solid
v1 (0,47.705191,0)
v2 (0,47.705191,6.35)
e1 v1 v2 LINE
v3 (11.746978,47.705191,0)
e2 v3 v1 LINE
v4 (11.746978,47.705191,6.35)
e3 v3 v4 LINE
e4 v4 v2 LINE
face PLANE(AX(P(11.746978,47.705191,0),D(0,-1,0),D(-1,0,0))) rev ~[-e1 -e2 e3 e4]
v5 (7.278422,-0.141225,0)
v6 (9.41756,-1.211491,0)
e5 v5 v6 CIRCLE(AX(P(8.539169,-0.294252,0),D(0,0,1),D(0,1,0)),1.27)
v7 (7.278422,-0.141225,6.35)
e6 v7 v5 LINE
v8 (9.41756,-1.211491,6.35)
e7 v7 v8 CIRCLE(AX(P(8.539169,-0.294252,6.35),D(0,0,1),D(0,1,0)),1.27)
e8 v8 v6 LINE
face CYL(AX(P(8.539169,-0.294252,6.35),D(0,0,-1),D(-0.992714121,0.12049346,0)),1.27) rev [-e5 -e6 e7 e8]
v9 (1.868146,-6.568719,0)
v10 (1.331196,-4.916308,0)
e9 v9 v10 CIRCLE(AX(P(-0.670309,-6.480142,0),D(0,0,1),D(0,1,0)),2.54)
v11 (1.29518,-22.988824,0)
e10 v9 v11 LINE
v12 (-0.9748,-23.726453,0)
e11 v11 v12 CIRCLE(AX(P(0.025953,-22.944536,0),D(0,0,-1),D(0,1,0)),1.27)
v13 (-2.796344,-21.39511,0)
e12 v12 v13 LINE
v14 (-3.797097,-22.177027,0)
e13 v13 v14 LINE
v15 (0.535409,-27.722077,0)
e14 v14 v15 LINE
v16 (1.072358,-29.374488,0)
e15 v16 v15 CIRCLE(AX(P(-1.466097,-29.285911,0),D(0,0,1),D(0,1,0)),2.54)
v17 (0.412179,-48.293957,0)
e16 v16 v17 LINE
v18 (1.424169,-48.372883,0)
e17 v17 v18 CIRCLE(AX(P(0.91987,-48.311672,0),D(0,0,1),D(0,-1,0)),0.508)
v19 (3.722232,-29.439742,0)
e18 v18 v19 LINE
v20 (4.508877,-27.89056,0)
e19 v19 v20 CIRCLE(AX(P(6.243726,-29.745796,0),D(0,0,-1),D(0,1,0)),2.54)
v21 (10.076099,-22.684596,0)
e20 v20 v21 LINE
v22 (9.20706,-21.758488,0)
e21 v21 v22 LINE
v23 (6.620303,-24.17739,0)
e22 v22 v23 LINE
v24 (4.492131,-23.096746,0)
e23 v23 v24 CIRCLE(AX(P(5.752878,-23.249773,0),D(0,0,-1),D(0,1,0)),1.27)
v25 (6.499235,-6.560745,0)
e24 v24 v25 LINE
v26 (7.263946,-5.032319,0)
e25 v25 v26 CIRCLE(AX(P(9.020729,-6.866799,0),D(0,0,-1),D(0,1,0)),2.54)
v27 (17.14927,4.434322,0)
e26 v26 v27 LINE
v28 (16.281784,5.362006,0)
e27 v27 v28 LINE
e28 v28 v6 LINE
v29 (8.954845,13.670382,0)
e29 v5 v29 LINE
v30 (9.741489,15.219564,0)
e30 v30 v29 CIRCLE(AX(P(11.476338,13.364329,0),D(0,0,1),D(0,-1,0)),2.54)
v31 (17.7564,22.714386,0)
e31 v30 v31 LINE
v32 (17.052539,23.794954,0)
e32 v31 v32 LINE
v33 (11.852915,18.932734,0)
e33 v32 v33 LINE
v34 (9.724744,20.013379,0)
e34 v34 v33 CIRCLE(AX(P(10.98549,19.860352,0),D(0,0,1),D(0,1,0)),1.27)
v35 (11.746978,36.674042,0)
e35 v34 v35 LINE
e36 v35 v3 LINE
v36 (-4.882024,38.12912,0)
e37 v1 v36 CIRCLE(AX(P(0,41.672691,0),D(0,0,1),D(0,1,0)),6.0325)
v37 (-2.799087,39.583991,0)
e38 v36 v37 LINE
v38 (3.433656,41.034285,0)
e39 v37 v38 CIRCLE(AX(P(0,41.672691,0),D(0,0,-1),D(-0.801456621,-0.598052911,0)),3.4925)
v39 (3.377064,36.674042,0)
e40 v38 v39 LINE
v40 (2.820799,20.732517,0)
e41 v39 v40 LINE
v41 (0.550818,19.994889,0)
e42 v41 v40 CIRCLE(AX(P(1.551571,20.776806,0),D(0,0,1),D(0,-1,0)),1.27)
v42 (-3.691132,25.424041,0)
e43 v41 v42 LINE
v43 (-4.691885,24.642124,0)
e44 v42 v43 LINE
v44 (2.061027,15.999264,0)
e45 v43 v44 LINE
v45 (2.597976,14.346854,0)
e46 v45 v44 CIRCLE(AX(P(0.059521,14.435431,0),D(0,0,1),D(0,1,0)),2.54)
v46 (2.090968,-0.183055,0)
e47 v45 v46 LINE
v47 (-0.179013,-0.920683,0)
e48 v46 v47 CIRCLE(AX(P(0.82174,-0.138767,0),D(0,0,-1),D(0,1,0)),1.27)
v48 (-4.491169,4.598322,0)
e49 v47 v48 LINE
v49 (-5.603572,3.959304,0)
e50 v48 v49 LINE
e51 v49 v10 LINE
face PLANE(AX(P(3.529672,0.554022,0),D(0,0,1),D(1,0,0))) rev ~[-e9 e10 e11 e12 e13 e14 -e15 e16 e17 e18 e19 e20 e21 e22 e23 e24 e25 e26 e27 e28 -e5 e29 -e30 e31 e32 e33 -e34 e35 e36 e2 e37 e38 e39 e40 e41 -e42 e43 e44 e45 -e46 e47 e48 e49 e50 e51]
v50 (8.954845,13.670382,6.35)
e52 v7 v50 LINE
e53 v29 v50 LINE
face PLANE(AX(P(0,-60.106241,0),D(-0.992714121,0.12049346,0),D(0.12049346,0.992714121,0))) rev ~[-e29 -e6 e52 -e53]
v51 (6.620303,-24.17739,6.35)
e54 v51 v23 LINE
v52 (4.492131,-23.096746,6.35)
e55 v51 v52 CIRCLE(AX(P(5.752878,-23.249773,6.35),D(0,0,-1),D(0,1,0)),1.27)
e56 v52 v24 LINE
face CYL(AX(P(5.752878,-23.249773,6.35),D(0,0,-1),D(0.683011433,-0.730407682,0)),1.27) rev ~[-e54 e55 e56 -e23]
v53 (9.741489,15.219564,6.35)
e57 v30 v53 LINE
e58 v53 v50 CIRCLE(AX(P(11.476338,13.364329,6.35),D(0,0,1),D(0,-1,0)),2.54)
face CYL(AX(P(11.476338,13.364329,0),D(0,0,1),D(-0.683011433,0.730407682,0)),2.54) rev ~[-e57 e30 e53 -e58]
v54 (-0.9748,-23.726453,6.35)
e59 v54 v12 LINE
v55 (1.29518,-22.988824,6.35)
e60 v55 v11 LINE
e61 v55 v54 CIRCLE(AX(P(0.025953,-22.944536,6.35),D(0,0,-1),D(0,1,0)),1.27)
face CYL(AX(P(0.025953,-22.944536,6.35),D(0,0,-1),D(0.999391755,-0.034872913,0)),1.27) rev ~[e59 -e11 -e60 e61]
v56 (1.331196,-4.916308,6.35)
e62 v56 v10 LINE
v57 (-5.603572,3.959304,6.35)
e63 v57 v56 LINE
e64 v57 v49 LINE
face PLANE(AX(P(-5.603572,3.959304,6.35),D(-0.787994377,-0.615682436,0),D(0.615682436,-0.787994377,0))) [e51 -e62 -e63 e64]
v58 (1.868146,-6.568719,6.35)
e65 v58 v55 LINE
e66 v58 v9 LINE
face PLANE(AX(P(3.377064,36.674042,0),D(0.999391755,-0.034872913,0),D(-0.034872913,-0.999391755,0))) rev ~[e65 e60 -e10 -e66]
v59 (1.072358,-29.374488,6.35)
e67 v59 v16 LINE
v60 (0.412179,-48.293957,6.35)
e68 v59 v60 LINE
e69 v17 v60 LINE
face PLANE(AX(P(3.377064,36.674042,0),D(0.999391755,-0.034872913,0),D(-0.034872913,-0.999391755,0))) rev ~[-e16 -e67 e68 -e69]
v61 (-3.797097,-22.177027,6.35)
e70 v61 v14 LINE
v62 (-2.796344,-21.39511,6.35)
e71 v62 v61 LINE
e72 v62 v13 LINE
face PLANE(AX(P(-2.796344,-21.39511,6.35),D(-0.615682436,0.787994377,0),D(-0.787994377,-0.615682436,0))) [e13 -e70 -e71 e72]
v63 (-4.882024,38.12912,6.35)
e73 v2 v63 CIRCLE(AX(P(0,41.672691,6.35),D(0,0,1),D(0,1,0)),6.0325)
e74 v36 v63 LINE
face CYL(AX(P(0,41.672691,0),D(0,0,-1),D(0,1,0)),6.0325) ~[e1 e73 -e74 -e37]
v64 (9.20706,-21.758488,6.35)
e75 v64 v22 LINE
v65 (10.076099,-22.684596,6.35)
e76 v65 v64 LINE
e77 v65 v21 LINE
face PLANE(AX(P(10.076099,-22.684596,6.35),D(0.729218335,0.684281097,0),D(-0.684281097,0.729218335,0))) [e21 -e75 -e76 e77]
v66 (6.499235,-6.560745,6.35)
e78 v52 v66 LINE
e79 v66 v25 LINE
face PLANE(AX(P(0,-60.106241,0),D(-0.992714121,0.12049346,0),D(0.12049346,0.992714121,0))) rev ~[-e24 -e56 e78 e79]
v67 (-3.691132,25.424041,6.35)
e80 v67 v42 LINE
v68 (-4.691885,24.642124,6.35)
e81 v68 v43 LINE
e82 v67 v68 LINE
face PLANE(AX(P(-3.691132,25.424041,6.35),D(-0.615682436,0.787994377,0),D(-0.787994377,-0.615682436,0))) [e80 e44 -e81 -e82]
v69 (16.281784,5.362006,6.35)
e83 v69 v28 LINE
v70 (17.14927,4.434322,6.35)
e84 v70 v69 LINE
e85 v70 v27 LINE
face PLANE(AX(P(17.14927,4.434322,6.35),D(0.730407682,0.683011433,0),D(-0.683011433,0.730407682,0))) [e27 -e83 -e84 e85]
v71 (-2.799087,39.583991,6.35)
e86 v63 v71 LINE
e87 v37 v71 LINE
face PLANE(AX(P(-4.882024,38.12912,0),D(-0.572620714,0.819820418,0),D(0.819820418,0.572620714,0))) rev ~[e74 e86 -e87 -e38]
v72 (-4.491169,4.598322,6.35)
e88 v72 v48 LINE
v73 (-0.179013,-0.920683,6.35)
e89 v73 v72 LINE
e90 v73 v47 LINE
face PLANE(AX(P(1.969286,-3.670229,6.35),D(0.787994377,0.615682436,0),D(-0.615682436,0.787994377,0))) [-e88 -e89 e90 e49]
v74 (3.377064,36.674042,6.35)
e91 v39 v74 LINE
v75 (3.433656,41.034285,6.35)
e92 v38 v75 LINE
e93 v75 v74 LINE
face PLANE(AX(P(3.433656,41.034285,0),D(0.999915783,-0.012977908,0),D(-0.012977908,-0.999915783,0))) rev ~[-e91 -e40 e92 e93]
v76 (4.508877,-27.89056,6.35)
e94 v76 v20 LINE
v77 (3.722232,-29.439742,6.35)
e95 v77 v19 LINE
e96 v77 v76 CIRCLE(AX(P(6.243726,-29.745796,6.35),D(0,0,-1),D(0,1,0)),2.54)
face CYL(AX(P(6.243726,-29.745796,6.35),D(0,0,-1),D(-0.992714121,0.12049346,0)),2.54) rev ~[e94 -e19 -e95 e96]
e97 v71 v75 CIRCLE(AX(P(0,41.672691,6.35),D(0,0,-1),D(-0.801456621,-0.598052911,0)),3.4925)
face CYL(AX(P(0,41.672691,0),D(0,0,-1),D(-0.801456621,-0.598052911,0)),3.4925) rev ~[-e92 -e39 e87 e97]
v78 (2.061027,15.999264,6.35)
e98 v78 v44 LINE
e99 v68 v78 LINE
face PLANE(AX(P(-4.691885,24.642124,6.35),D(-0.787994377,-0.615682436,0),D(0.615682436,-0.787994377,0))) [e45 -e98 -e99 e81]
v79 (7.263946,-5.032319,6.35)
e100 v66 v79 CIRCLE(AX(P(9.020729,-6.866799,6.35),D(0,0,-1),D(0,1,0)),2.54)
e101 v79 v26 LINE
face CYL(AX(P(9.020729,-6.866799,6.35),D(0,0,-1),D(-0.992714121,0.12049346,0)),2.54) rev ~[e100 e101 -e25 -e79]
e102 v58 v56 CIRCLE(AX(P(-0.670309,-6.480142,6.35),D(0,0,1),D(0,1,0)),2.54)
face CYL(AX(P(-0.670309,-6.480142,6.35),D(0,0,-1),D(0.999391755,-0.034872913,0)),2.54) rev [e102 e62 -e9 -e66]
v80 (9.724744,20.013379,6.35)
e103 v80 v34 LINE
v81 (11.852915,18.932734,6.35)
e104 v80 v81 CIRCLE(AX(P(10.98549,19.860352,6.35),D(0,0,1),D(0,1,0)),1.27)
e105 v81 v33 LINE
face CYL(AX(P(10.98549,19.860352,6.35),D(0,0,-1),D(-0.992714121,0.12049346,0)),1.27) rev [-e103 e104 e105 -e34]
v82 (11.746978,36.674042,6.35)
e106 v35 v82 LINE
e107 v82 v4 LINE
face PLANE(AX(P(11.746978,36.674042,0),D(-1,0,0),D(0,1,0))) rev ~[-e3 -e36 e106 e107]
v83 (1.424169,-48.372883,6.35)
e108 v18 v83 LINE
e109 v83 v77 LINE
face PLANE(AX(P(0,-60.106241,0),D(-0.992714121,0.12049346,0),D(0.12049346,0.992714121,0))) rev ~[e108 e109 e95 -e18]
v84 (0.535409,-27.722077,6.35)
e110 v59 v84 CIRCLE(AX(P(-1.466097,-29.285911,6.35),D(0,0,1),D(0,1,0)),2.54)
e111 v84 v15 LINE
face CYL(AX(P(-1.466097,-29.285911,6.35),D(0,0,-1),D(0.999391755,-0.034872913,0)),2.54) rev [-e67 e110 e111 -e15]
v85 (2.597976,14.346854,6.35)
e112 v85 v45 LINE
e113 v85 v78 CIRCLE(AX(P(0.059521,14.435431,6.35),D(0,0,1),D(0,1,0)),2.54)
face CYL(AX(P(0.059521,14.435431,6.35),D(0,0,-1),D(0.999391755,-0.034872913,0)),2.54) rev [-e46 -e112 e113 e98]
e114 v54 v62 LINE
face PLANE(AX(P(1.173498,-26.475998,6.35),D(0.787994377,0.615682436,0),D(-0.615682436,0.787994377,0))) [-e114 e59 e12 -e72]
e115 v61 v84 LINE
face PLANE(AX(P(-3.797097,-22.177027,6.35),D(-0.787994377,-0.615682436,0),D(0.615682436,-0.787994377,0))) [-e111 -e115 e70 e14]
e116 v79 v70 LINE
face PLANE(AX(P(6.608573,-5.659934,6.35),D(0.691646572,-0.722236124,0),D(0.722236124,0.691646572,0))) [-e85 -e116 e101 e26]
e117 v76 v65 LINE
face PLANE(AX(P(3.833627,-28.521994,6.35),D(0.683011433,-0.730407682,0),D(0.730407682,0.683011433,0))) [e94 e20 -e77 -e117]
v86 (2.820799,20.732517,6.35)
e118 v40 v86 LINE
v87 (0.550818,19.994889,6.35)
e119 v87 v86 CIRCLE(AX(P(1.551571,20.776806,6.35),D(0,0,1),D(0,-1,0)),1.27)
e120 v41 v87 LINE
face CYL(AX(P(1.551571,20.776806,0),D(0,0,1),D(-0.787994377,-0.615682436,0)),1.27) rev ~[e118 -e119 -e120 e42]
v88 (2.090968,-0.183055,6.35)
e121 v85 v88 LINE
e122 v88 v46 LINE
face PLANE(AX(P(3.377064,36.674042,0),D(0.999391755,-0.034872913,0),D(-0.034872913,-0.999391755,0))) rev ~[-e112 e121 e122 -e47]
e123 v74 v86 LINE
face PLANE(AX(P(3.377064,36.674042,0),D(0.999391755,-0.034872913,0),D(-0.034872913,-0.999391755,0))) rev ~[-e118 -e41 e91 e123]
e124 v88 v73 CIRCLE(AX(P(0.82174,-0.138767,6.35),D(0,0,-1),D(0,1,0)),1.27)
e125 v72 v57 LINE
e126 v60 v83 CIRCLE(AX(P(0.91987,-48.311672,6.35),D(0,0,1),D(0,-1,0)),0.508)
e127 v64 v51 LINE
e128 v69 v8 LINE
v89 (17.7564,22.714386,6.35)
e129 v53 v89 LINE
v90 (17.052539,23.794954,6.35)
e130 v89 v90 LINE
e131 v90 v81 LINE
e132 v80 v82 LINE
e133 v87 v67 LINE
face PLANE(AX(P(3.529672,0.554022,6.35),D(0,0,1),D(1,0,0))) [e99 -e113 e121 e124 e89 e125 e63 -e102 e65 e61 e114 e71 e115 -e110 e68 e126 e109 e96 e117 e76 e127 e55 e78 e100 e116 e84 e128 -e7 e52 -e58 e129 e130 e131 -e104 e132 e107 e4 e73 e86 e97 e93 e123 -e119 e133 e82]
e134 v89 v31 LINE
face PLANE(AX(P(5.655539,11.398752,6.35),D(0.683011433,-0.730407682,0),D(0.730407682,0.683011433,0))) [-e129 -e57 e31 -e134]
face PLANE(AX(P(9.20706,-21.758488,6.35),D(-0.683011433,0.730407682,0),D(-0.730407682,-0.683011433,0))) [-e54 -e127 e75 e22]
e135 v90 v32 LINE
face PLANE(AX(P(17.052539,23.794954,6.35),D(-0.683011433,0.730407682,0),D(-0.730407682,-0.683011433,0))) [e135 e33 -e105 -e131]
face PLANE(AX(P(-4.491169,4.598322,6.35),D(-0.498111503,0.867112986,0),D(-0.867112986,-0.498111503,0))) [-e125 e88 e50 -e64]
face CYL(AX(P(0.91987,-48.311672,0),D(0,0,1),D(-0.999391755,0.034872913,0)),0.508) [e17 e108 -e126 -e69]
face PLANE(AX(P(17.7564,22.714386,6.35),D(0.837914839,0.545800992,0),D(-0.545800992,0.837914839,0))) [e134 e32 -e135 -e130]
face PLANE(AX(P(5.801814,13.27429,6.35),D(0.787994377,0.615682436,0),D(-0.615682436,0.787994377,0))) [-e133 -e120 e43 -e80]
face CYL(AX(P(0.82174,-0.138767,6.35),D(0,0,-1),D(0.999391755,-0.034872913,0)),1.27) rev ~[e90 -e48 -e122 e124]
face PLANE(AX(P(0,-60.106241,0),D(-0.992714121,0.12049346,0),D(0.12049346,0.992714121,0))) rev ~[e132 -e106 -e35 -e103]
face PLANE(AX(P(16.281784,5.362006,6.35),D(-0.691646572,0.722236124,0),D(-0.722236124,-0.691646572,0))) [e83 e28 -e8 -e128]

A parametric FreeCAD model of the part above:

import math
import FreeCAD as App
import Part
import Sketcher
from FreeCAD import Vector
Q = App.Units.Quantity


def edges_at(feature, points):
    """Names of the edges that pass closest to the given points."""
    edges = feature.Shape.Edges
    near = lambda p: min(range(len(edges)), key=lambda i: edges[i].distToShape(Part.Vertex(*p))[0])
    return sorted({f"Edge{near(p) + 1}" for p in points})


def add_polygon(sketch, points):
    """Adds a closed chain of lines whose ends are joined by coincident constraints."""
    first, n = sketch.GeometryCount, len(points)
    for a, b in zip(points, points[1:] + points[:1]):
        sketch.addGeometry(Part.LineSegment(App.Vector(*a, 0), App.Vector(*b, 0)), False)
    for i in range(n):
        sketch.addConstraint(Sketcher.Constraint("Coincident", first + i, 2, first + (i + 1) % n, 1))

doc = App.newDocument("Part")
body = doc.addObject("PartDesign::Body", "Body")

sketch1 = body.newObject("Sketcher::SketchObject", "Sketch")
sketch1.AttachmentSupport = (doc.getObject("XY_Plane"), [""])
sketch1.MapMode = "FlatFace"
sketch1.addGeometry([
    Part.ArcOfCircle(Part.Circle(Vector(0, 41.7, 0), Vector(0, 0, 1), 3.5), math.radians(-11), math.radians(217)),
    Part.LineSegment(Vector(3.4, 41, 0), Vector(3.4, 36.7, 0)),
    Part.LineSegment(Vector(3.4, 36.7, 0), Vector(0, -60.1, 0)),
    Part.LineSegment(Vector(0, -60.1, 0), Vector(11.7, 36.7, 0)),
    Part.LineSegment(Vector(11.7, 36.7, 0), Vector(11.7, 47.7, 0)),
    Part.LineSegment(Vector(11.7, 47.7, 0), Vector(0, 47.7, 0)),
    Part.ArcOfCircle(Part.Circle(Vector(0, 41.7, 0), Vector(0, 0, 1), 6), math.radians(90), math.radians(216)),
    Part.LineSegment(Vector(-4.9, 38.1, 0), Vector(-2.8, 39.6, 0)),
], False)
sketch1.addConstraint([
    Sketcher.Constraint("Coincident", 0, 1, 1, 1),
    Sketcher.Constraint("Coincident", 1, 2, 2, 1),
    Sketcher.Constraint("Coincident", 2, 2, 3, 1),
    Sketcher.Constraint("Coincident", 3, 2, 4, 1),
    Sketcher.Constraint("Coincident", 4, 2, 5, 1),
    Sketcher.Constraint("Tangent", 5, 2, 6, 1),
    Sketcher.Constraint("Coincident", 6, 2, 7, 1),
    Sketcher.Constraint("Coincident", 7, 2, 0, 2),
    Sketcher.Constraint("Vertical", 4),
    Sketcher.Constraint("Horizontal", 5),
    Sketcher.Constraint("Coincident", 6, 3, 0, 3),
    Sketcher.Constraint("PointOnObject", 0, 3, -2),
    Sketcher.Constraint("PointOnObject", 2, 2, -2),
    Sketcher.Constraint("Horizontal", 1, 2, 3, 2),
    Sketcher.Constraint("Radius", 0, Q("0.1375 in")),
    Sketcher.Constraint("Radius", 6, Q("0.2375 in")),
    Sketcher.Constraint("DistanceX", 5, 2, 5, 1, Q("11.746978 mm")),
    Sketcher.Constraint("DistanceY", 4, 1, 4, 2, Q("11.031149 mm")),
    Sketcher.Constraint("DistanceY", 7, 2, 0, 3, Q("2.0887 mm")),
    Sketcher.Constraint("Distance", 1, Q("4.36061 mm")),
    Sketcher.Constraint("DistanceY", -1, 1, 0, 3, Q("41.672691 mm")),
    Sketcher.Constraint("DistanceY", 2, 2, -1, 1, Q("60.106241 mm")),
    Sketcher.Constraint("DistanceY", -1, 1, 6, 2, Q("38.12912 mm")),
    Sketcher.Constraint("DistanceX", 1, 2, 0, 1, Q("0.056592 mm")),
])
pad1 = body.newObject("PartDesign::Pad", "Pad")
pad1.Profile = sketch1
pad1.Length = Q("0.25 in")

sketch2 = body.newObject("Sketcher::SketchObject", "Sketch001")
sketch2.AttachmentSupport = (doc.getObject("XY_Plane"), [""])
sketch2.MapMode = "FlatFace"
sketch2.AttachmentOffset = App.Placement(Vector(0, 0, 0.25 * 25.4), App.Rotation())
add_polygon(sketch2, [(5.8, 13.3), (-3.7, 25.4), (-4.7, 24.6), (5.7, 11.4), (17.8, 22.7), (17.1, 23.8)])
add_polygon(sketch2, [(2, -3.7), (-4.5, 4.6), (-5.6, 4), (1.9, -5.6)])
add_polygon(sketch2, [(16.3, 5.4), (6.9, -3.7), (6.6, -5.7), (17.1, 4.4)])
add_polygon(sketch2, [(1.1, -28.5), (1.2, -26.5), (-2.8, -21.4), (-3.8, -22.2)])
add_polygon(sketch2, [(9.2, -21.8), (4.1, -26.6), (3.8, -28.5), (10.1, -22.7)])
sketch2.addConstraint([
    Sketcher.Constraint("Perpendicular", 0, 1),
    Sketcher.Constraint("Perpendicular", 1, 2),
    Sketcher.Constraint("Parallel", 3, 5),
    Sketcher.Constraint("Parallel", 2, 6),
    Sketcher.Constraint("Parallel", 6, 8),
    Sketcher.Constraint("Parallel", 10, 12),
    Sketcher.Constraint("Perpendicular", 5, 13),
    Sketcher.Constraint("Parallel", 9, 14),
    Sketcher.Constraint("Parallel", 8, 15),
    Sketcher.Constraint("Perpendicular", 15, 16),
    Sketcher.Constraint("Perpendicular", 16, 17),
    Sketcher.Constraint("Perpendicular", 13, 18),
    Sketcher.Constraint("Parallel", 11, 19),
    Sketcher.Constraint("Parallel", 18, 20),
    Sketcher.Constraint("Horizontal", 9, 2, 10, 2),
    Sketcher.Constraint("Equal", 9, 14),
    Sketcher.Constraint("Equal", 1, 16),
    Sketcher.Constraint("Equal", 14, 19),
    Sketcher.Constraint("Equal", 16, 21),
    Sketcher.Constraint("Distance", 1, Q("0.05 in")),
    Sketcher.Constraint("Distance", 17, Q("7.961401 mm")),
    Sketcher.Constraint("DistanceX", -1, 1, 3, 2, Q("17.7564 mm")),
    Sketcher.Constraint("DistanceX", -1, 1, 14, 2, Q("1.173498 mm")),
    Sketcher.Constraint("DistanceY", 14, 2, -1, 1, Q("26.475998 mm")),
    Sketcher.Constraint("DistanceX", -1, 1, 20, 2, Q("10.076099 mm")),
    Sketcher.Constraint("DistanceX", 2, 2, 4, 2, Q("11.397 mm")),
    Sketcher.Constraint("DistanceX", 1, 2, 5, 2, Q("10.493699 mm")),
    Sketcher.Constraint("DistanceY", 8, 2, 7, 2, Q("9.604101 mm")),
    Sketcher.Constraint("DistanceX", 8, 2, 9, 2, Q("0.068901 mm")),
    Sketcher.Constraint("DistanceY", 14, 2, 8, 2, Q("20.831202 mm")),
    Sketcher.Constraint("DistanceY", 14, 2, 20, 2, Q("3.791402 mm")),
    Sketcher.Constraint("Distance", 2, Q("16.80643 mm")),
    Sketcher.Constraint("Distance", 3, Q("16.567269 mm")),
    Sketcher.Constraint("Distance", 4, Q("1.289592 mm")),
    Sketcher.Constraint("Distance", 5, Q("15.40335 mm")),
    Sketcher.Constraint("Distance", 6, Q("10.49316 mm")),
    Sketcher.Constraint("Distance", 11, Q("2.004308 mm")),
    Sketcher.Constraint("Distance", 12, Q("14.59453 mm")),
    Sketcher.Constraint("Distance", 13, Q("1.27009 mm")),
    Sketcher.Constraint("Distance", 18, Q("7.030822 mm")),
    Sketcher.Constraint("Distance", 20, Q("8.546558 mm")),
    Sketcher.Constraint("DistanceY", -1, 1, 0, 2, Q("25.424041 mm")),
    Sketcher.Constraint("DistanceX", 6, 2, -1, 1, Q("4.491169 mm")),
    Sketcher.Constraint("DistanceX", -1, 1, 10, 2, Q("6.850079 mm")),
])
pad2 = body.newObject("PartDesign::Pad", "Pad001")
pad2.Profile = sketch2
pad2.Type = "UpToLast"
pad2.Reversed = True
doc.recompute()

fillet = body.newObject("PartDesign::Fillet", "Fillet")
fillet.Base = (pad2, edges_at(pad2, [
    (2.63, 15.271, 3.175),
    (9.066, 14.588, 3.175),
    (6.609, -5.66, 3.175),
    (1.9, -5.645, 3.175),
    (1.105, -28.451, 3.175),
    (3.834, -28.522, 3.175),
]))
fillet.Radius = Q("0.1 in")
doc.recompute()

fillet2 = body.newObject("PartDesign::Fillet", "Fillet001")
fillet2.Base = (fillet, edges_at(fillet, [
    (2.699, 17.245, 3.175),
    (9.304, 16.55, 3.175),
    (6.85, -3.67, 3.175),
    (1.969, -3.67, 3.175),
    (1.173, -26.476, 3.175),
    (4.072, -26.561, 3.175),
]))
fillet2.Radius = Q("0.05 in")
doc.recompute()

fillet3 = body.newObject("PartDesign::Fillet", "Fillet002")
fillet3.Base = (fillet2, edges_at(fillet2, [(0, -60.106, 3.175)]))
fillet3.Radius = Q("0.02 in")

doc.recompute()
